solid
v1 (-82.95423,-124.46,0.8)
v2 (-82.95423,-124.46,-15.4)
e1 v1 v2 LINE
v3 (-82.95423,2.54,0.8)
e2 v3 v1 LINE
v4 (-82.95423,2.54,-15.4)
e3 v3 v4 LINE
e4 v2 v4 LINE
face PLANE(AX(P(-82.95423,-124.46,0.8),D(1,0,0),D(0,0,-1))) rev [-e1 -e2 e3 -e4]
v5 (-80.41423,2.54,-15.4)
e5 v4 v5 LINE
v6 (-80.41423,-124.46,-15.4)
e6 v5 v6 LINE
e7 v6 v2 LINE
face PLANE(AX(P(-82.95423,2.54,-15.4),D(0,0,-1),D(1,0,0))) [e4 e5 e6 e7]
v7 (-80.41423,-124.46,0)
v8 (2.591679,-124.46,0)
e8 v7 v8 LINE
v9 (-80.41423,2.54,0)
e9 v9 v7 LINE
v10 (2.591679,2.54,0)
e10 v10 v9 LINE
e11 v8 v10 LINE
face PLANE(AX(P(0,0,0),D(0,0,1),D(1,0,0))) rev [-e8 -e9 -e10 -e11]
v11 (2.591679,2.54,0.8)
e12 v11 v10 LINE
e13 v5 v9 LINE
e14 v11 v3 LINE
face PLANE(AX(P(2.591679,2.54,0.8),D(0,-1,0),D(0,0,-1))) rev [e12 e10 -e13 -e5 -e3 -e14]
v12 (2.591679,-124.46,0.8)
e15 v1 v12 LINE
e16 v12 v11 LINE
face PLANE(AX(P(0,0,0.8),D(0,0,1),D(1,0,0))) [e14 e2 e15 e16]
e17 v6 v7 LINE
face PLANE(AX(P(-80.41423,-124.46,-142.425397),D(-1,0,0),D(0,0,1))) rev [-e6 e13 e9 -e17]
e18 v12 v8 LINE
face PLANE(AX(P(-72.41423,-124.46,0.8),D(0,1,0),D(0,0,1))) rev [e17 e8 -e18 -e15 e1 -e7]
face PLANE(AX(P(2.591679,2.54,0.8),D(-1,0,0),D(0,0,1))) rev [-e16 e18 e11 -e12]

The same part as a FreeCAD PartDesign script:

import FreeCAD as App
import Part
import Sketcher

V = App.Vector


def add_polygon(sketch, points):
    """Adds a closed chain of lines whose ends are joined by coincident constraints."""
    first, n = sketch.GeometryCount, len(points)
    for a, b in zip(points, points[1:] + points[:1]):
        sketch.addGeometry(Part.LineSegment(App.Vector(*a, 0), App.Vector(*b, 0)), False)
    for i in range(n):
        sketch.addConstraint(Sketcher.Constraint("Coincident", first + i, 2, first + (i + 1) % n, 1))

doc = App.newDocument("Part")
body = doc.addObject("PartDesign::Body", "Body")

# Sketch on XY plane
sketch1 = body.newObject("Sketcher::SketchObject", "Sketch")
sketch1.AttachmentSupport = (doc.getObject("XY_Plane"), [""])
sketch1.MapMode = "FlatFace"
add_polygon(sketch1, [(3, -124), (3, 3), (-72, 3), (-72, -124)])  # lines 0-3
sketch1.addConstraint([
    Sketcher.Constraint("Vertical", 0),
    Sketcher.Constraint("Horizontal", 1),
    Sketcher.Constraint("Vertical", 2),
    Sketcher.Constraint("Horizontal", 3),
    Sketcher.Constraint("DistanceY", 0, 1, 0, 2, 127.0),
    Sketcher.Constraint("DistanceY", -1, 1, 0, 2, 2.54),
    Sketcher.Constraint("DistanceX", 1, 2, 1, 1, 75.005909),
    Sketcher.Constraint("DistanceX", -1, 1, 0, 2, 2.591679),
])
pad1 = body.newObject("PartDesign::Pad", "Pad")
pad1.Profile = sketch1
pad1.Length = 0.8

# Sketch on XY plane
sketch2 = body.newObject("Sketcher::SketchObject", "Sketch001")
sketch2.AttachmentSupport = (doc.getObject("XY_Plane"), [""])
sketch2.MapMode = "FlatFace"
add_polygon(sketch2, [(-83, -124), (-72, -124), (-72, 3), (-83, 3)])  # lines 0-3
sketch2.addConstraint([
    Sketcher.Constraint("Horizontal", 0),
    Sketcher.Constraint("Vertical", 1),
    Sketcher.Constraint("Horizontal", 2),
    Sketcher.Constraint("Vertical", 3),
    Sketcher.Constraint("DistanceY", 1, 1, 1, 2, 127.0),
    Sketcher.Constraint("DistanceX", 0, 1, 0, 2, 10.54),
    Sketcher.Constraint("DistanceY", 0, 2, -1, 1, 124.46),
    Sketcher.Constraint("DistanceX", 0, 2, -1, 1, 72.41423),
])
pad2 = body.newObject("PartDesign::Pad", "Pad001")
pad2.Profile = sketch2
pad2.Length = 0.8

# Sketch on XY plane
sketch3 = body.newObject("Sketcher::SketchObject", "Sketch002")
sketch3.AttachmentSupport = (doc.getObject("XY_Plane"), [""])
sketch3.MapMode = "FlatFace"
add_polygon(sketch3, [(-83, 2.5), (-80.4, 2.5), (-80.4, -124.5), (-83, -124.5)])  # lines 0-3
sketch3.addConstraint([
    Sketcher.Constraint("Horizontal", 0),
    Sketcher.Constraint("Vertical", 1),
    Sketcher.Constraint("Horizontal", 2),
    Sketcher.Constraint("Vertical", 3),
    Sketcher.Constraint("DistanceY", 1, 2, 1, 1, 127.0),
    Sketcher.Constraint("DistanceX", 0, 1, 0, 2, 2.54),
    Sketcher.Constraint("DistanceY", -1, 1, 0, 2, 2.54),
    Sketcher.Constraint("DistanceX", 0, 2, -1, 1, 80.41423),
])
pad3 = body.newObject("PartDesign::Pad", "Pad002")
pad3.Profile = sketch3
pad3.Length = 15.4
pad3.Reversed = True

doc.recompute()
